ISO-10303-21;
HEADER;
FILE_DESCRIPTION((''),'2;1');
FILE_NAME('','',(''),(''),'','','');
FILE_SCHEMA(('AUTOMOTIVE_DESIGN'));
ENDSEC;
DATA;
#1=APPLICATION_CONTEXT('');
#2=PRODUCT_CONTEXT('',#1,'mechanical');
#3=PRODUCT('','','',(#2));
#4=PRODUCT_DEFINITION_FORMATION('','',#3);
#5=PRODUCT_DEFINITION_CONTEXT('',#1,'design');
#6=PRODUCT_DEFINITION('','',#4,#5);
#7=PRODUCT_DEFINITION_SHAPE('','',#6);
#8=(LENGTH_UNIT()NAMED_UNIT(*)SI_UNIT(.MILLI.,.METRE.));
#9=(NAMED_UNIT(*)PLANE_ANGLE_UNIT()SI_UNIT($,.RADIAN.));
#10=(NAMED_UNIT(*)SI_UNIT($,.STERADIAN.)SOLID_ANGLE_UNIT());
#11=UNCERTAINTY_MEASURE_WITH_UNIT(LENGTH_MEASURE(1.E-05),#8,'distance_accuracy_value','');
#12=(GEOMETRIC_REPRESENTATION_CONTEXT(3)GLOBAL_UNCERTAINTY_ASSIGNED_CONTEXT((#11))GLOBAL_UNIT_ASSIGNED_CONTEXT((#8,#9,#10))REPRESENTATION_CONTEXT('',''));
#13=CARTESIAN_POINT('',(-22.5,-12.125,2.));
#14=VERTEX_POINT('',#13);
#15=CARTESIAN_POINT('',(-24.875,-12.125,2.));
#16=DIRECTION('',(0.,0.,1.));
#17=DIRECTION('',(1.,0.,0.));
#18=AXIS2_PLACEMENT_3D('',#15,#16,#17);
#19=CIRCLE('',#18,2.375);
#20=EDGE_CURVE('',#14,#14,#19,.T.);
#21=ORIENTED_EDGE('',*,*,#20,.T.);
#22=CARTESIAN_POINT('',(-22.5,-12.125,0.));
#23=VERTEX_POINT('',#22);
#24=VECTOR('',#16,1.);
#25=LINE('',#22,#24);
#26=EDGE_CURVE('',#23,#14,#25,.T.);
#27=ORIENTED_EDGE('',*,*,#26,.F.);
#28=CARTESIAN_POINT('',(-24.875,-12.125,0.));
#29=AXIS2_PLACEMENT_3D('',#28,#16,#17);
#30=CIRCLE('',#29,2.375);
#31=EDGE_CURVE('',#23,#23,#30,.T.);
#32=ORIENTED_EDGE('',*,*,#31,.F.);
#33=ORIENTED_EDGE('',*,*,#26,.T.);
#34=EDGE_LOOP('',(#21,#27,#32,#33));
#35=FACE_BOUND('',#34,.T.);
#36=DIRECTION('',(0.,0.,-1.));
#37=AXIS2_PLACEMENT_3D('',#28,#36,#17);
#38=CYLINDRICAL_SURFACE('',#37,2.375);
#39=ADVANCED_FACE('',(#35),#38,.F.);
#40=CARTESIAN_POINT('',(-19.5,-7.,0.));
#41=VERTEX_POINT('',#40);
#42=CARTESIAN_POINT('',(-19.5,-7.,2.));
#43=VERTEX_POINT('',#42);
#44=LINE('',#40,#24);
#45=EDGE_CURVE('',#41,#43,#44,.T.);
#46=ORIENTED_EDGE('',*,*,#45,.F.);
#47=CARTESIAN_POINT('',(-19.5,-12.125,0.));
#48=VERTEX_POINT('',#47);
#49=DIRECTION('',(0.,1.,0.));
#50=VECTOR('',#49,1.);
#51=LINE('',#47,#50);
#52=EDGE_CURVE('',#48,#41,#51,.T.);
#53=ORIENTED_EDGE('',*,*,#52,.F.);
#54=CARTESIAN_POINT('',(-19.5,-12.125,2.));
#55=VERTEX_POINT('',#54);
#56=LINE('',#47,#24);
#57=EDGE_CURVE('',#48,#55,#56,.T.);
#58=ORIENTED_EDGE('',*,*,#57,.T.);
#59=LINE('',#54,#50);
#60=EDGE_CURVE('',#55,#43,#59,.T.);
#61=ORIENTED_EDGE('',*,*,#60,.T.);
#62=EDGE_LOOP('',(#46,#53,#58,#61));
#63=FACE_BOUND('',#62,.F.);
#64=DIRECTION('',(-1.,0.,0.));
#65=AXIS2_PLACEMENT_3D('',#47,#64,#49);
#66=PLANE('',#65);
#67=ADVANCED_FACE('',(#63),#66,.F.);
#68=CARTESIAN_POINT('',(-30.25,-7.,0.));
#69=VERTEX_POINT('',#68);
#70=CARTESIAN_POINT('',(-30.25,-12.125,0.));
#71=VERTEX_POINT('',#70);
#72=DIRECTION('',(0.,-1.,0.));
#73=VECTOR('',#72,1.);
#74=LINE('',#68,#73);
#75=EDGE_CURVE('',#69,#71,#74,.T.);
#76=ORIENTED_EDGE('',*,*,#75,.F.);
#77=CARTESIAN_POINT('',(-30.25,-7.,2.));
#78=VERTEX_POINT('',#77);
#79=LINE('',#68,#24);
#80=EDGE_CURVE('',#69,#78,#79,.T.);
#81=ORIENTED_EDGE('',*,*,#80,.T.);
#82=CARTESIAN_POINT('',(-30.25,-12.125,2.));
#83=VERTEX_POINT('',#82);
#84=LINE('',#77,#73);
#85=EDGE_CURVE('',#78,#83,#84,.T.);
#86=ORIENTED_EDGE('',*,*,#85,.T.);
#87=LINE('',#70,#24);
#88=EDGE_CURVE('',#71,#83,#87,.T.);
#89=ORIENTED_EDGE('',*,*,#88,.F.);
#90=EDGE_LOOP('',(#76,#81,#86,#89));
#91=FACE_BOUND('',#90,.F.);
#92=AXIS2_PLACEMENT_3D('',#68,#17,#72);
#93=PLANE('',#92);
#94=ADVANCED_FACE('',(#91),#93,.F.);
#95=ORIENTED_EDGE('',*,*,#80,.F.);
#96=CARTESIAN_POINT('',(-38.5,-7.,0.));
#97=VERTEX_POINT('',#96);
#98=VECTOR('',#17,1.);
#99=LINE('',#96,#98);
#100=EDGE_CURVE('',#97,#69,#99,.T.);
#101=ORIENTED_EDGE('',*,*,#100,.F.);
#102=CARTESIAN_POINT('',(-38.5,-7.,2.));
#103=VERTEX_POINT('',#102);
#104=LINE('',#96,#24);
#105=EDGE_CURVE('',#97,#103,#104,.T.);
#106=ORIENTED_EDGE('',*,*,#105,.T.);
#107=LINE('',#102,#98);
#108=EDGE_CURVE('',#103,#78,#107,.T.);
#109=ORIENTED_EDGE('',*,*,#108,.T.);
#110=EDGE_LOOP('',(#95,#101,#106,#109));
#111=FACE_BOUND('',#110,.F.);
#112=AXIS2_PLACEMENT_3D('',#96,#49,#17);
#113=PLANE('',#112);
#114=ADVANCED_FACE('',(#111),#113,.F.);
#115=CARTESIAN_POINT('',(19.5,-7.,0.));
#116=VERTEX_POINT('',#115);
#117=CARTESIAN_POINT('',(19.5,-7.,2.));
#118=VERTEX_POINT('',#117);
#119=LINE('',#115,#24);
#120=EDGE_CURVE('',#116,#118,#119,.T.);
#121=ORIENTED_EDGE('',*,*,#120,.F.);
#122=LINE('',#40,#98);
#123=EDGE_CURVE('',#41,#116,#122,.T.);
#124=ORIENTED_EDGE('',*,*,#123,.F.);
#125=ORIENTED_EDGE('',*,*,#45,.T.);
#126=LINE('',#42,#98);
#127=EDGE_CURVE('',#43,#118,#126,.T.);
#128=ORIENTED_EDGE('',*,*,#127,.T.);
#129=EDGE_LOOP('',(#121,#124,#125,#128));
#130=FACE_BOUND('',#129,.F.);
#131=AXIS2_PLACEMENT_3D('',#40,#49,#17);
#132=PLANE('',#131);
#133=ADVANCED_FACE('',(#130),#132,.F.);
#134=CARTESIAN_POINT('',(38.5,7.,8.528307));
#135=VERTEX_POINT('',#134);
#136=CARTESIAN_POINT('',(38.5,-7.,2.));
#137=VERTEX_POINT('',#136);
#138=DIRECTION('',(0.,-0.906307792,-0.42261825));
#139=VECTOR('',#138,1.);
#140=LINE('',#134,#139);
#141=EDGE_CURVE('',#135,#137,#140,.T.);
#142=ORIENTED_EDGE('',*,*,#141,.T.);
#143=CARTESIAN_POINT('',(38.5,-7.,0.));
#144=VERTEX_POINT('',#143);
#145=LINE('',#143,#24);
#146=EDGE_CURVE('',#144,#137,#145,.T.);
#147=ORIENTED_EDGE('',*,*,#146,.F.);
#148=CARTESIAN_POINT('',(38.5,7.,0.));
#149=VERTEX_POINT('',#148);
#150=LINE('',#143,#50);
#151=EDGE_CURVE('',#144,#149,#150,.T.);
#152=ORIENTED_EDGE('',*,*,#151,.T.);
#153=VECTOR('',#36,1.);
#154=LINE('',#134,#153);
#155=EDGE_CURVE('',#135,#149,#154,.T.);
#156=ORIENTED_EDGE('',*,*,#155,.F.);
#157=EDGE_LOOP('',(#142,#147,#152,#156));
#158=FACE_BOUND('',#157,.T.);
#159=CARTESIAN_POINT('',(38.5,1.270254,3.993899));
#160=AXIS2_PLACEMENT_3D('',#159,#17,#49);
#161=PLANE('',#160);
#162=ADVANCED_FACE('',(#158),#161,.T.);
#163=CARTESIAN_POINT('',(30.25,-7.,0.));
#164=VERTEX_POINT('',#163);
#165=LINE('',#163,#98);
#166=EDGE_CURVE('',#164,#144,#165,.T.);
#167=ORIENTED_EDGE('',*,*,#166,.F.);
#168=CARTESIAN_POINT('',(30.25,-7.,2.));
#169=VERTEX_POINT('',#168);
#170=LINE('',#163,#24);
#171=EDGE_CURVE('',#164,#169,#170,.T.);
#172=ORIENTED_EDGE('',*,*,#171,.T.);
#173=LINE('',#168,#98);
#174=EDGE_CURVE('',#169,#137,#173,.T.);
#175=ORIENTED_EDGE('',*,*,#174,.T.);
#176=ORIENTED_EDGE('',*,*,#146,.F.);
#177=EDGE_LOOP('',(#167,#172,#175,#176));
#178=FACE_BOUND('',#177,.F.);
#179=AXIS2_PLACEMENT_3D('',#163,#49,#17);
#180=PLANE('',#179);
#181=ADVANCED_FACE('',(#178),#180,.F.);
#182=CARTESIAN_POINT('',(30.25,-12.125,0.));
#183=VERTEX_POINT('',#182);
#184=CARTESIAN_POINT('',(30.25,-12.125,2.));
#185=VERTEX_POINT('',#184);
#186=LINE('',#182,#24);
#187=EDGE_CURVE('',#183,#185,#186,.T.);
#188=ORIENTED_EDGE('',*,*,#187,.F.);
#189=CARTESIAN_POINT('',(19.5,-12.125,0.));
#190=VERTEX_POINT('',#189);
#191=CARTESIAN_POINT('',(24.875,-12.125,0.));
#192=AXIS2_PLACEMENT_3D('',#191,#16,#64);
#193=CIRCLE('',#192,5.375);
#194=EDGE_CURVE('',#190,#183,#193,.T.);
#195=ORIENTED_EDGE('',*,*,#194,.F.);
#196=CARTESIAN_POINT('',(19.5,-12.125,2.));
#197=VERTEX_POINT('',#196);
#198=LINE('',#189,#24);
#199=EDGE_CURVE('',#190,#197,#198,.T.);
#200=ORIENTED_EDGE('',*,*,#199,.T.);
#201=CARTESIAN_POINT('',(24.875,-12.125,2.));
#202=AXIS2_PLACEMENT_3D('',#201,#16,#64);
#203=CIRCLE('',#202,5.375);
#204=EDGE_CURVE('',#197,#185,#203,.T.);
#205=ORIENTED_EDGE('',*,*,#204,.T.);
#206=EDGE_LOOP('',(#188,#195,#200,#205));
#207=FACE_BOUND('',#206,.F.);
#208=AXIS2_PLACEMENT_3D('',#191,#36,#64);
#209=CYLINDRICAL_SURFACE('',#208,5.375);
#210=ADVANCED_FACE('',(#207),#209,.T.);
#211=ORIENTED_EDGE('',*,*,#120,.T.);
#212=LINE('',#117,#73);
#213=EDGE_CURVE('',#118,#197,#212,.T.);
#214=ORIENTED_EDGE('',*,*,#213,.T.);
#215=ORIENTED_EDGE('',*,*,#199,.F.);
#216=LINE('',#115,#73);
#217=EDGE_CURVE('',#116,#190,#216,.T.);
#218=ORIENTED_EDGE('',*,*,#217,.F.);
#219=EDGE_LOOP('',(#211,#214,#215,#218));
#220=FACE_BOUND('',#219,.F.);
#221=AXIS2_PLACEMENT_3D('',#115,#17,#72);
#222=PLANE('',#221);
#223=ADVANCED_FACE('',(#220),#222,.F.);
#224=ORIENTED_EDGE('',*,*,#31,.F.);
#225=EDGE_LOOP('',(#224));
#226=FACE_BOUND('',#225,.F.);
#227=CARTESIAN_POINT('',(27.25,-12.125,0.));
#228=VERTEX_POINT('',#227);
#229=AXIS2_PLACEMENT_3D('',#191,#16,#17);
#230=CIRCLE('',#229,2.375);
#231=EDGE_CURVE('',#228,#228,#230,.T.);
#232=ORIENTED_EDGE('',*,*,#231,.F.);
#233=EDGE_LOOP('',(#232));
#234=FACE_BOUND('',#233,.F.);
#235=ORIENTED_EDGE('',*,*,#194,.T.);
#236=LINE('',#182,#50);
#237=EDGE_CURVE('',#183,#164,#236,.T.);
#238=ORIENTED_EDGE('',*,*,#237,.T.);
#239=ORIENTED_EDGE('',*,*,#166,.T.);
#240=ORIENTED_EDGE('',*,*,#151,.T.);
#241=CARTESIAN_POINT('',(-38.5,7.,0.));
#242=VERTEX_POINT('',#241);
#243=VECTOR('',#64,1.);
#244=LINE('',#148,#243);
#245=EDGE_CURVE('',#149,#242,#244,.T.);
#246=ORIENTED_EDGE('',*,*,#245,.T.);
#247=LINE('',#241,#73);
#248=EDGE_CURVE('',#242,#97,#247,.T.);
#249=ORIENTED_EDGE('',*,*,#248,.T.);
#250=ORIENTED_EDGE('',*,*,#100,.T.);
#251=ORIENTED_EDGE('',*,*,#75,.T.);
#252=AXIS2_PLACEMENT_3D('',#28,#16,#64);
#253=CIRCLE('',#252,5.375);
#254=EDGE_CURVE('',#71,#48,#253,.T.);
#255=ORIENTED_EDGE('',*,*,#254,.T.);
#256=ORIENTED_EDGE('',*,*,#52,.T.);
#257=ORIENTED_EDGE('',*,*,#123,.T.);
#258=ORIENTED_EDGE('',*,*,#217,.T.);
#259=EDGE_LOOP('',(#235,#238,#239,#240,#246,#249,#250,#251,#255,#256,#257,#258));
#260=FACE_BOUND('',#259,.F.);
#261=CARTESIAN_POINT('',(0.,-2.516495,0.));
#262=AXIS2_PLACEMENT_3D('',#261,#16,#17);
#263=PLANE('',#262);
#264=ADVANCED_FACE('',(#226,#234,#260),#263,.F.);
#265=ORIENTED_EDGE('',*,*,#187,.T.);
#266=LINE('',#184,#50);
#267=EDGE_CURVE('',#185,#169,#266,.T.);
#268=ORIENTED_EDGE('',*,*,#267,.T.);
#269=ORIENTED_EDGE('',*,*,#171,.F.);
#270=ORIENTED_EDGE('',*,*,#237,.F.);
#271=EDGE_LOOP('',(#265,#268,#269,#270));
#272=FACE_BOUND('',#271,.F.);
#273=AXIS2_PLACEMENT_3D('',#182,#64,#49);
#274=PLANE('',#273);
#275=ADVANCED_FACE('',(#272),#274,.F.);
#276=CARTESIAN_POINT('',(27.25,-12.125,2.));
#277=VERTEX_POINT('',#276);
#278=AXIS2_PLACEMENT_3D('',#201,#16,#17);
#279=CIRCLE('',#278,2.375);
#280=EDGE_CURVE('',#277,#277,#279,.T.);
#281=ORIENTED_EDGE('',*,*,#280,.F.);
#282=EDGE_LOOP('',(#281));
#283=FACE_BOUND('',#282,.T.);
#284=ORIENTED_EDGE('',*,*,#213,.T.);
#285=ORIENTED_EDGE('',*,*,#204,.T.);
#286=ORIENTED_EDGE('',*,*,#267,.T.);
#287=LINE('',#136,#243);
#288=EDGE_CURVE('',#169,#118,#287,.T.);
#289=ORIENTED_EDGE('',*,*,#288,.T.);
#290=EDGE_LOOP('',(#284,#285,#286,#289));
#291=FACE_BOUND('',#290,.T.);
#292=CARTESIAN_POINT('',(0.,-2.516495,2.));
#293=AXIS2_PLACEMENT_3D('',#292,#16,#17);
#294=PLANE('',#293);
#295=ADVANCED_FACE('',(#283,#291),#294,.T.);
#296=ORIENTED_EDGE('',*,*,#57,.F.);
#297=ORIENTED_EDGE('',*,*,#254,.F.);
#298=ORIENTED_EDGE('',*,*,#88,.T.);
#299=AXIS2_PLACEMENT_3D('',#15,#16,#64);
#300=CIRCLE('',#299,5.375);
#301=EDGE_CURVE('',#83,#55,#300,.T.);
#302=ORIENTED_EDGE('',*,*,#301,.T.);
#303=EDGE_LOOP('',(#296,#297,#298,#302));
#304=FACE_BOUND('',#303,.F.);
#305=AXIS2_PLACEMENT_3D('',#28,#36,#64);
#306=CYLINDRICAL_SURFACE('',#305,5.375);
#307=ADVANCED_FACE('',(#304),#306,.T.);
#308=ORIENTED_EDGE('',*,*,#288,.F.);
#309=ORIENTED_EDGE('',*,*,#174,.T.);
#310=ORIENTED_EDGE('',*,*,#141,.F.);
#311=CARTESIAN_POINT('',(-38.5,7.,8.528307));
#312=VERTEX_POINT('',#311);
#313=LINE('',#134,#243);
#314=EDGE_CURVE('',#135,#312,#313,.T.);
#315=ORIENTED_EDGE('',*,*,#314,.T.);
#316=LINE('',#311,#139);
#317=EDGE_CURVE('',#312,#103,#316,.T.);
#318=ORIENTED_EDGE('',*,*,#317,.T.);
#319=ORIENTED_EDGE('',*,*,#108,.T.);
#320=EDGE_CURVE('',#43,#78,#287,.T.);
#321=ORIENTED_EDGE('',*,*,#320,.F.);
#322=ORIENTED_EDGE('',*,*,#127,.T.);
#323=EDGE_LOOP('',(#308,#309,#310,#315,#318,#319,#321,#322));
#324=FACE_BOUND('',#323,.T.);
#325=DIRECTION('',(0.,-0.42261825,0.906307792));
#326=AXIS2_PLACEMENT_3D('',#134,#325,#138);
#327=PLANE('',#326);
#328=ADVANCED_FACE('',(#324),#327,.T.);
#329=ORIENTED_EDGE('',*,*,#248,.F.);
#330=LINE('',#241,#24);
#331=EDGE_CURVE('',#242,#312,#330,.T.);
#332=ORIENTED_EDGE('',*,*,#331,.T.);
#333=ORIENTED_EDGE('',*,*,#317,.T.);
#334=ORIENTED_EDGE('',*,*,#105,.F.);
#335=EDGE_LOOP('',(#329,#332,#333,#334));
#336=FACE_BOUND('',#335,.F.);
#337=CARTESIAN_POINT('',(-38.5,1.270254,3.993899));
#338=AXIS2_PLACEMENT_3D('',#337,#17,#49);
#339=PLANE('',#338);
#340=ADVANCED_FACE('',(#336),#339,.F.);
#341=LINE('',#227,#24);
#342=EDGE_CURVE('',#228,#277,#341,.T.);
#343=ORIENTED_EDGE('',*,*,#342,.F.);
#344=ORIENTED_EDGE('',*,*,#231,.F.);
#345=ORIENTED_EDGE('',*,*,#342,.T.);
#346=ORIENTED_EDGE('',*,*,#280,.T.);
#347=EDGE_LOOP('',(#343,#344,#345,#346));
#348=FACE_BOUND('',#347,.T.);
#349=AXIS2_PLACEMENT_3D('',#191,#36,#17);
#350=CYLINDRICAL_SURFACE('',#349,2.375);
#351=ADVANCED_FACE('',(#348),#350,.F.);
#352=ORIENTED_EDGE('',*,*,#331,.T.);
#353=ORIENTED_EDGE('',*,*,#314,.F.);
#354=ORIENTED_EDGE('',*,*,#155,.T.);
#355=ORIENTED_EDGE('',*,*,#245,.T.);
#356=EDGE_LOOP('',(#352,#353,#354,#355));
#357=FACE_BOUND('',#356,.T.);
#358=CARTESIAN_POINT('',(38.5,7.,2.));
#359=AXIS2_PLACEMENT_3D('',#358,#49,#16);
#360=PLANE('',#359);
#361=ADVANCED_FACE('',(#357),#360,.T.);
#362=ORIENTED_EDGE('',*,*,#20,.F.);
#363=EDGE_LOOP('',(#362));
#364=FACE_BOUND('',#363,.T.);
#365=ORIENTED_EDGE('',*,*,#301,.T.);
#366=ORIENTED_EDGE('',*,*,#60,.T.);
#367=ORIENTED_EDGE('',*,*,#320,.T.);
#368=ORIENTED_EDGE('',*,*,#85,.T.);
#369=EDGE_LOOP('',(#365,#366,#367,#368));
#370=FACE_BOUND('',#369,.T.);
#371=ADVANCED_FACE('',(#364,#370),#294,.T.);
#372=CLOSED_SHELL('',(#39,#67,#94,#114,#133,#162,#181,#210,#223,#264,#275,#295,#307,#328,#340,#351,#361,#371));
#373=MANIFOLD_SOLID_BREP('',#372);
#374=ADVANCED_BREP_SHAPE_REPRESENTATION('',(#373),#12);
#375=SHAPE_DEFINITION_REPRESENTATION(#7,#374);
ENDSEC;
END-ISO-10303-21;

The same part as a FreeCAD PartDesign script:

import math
import FreeCAD as App
import Part
import Sketcher
from FreeCAD import Vector
Q = App.Units.Quantity


def add_polygon(sketch, points):
    """Adds a closed chain of lines whose ends are joined by coincident constraints."""
    first, n = sketch.GeometryCount, len(points)
    for a, b in zip(points, points[1:] + points[:1]):
        sketch.addGeometry(Part.LineSegment(App.Vector(*a, 0), App.Vector(*b, 0)), False)
    for i in range(n):
        sketch.addConstraint(Sketcher.Constraint("Coincident", first + i, 2, first + (i + 1) % n, 1))

doc = App.newDocument("Part")
body = doc.addObject("PartDesign::Body", "Body")

# Sketch on XY plane
sketch1 = body.newObject("Sketcher::SketchObject", "Sketch")
sketch1.AttachmentSupport = (doc.getObject("XY_Plane"), [""])
sketch1.MapMode = "FlatFace"
sketch1.addGeometry(Part.LineSegment(Vector(38.5, -7, 0), Vector(38.5, 7, 0)), False)
sketch1.addGeometry(Part.LineSegment(Vector(38.5, 7, 0), Vector(-38.5, 7, 0)), False)
sketch1.addGeometry(Part.LineSegment(Vector(-38.5, 7, 0), Vector(-38.5, -7, 0)), False)
sketch1.addGeometry(Part.LineSegment(Vector(-38.5, -7, 0), Vector(-30.2, -7, 0)), False)
sketch1.addGeometry(Part.LineSegment(Vector(-30.2, -7, 0), Vector(-30.2, -12.1, 0)), False)
sketch1.addGeometry(Part.ArcOfCircle(Part.Circle(Vector(-24.9, -12.1, 0), Vector(0, 0, 1), 5.4), math.radians(180), math.radians(360)), False)
sketch1.addGeometry(Part.LineSegment(Vector(-19.5, -12.1, 0), Vector(-19.5, -7, 0)), False)
sketch1.addGeometry(Part.LineSegment(Vector(-19.5, -7, 0), Vector(19.5, -7, 0)), False)
sketch1.addGeometry(Part.LineSegment(Vector(19.5, -7, 0), Vector(19.5, -12.1, 0)), False)
sketch1.addGeometry(Part.ArcOfCircle(Part.Circle(Vector(24.9, -12.1, 0), Vector(0, 0, 1), 5.4), math.radians(180), math.radians(360)), False)
sketch1.addGeometry(Part.LineSegment(Vector(30.2, -12.1, 0), Vector(30.2, -7, 0)), False)
sketch1.addGeometry(Part.LineSegment(Vector(30.2, -7, 0), Vector(38.5, -7, 0)), False)
sketch1.addGeometry(Part.Circle(Vector(-24.9, -12.1, 0), Vector(0, 0, 1), 2.4), False)
sketch1.addGeometry(Part.Circle(Vector(24.9, -12.1, 0), Vector(0, 0, 1), 2.4), False)
sketch1.addConstraint(Sketcher.Constraint("Coincident", 0, 2, 1, 1))
sketch1.addConstraint(Sketcher.Constraint("Coincident", 1, 2, 2, 1))
sketch1.addConstraint(Sketcher.Constraint("Coincident", 2, 2, 3, 1))
sketch1.addConstraint(Sketcher.Constraint("Coincident", 3, 2, 4, 1))
sketch1.addConstraint(Sketcher.Constraint("Tangent", 4, 2, 5, 1))
sketch1.addConstraint(Sketcher.Constraint("Tangent", 5, 2, 6, 1))
sketch1.addConstraint(Sketcher.Constraint("Coincident", 6, 2, 7, 1))
sketch1.addConstraint(Sketcher.Constraint("Coincident", 7, 2, 8, 1))
sketch1.addConstraint(Sketcher.Constraint("Tangent", 8, 2, 9, 1))
sketch1.addConstraint(Sketcher.Constraint("Tangent", 9, 2, 10, 1))
sketch1.addConstraint(Sketcher.Constraint("Coincident", 10, 2, 11, 1))
sketch1.addConstraint(Sketcher.Constraint("Coincident", 11, 2, 0, 1))
sketch1.addConstraint(Sketcher.Constraint("Vertical", 0))
sketch1.addConstraint(Sketcher.Constraint("Horizontal", 1))
sketch1.addConstraint(Sketcher.Constraint("Vertical", 2))
sketch1.addConstraint(Sketcher.Constraint("Horizontal", 3))
sketch1.addConstraint(Sketcher.Constraint("Vertical", 4))
sketch1.addConstraint(Sketcher.Constraint("Vertical", 6))
sketch1.addConstraint(Sketcher.Constraint("Horizontal", 7))
sketch1.addConstraint(Sketcher.Constraint("Vertical", 8))
sketch1.addConstraint(Sketcher.Constraint("Vertical", 10))
sketch1.addConstraint(Sketcher.Constraint("Horizontal", 11))
sketch1.addConstraint(Sketcher.Constraint("Coincident", 12, 3, 5, 3))
sketch1.addConstraint(Sketcher.Constraint("Coincident", 13, 3, 9, 3))
sketch1.addConstraint(Sketcher.Constraint("Equal", 5, 9))
sketch1.addConstraint(Sketcher.Constraint("Equal", 12, 13))
sketch1.addConstraint(Sketcher.Constraint("Symmetric", 0, 2, 2, 2, -1, 1))
sketch1.addConstraint(Sketcher.Constraint("Symmetric", 5, 3, 9, 3, -2))
sketch1.addConstraint(Sketcher.Constraint("Horizontal", 3, 2, 6, 2))
sketch1.addConstraint(Sketcher.Constraint("Horizontal", 7, 2, 10, 2))
sketch1.addConstraint(Sketcher.Constraint("Diameter", 12, 4.75))
sketch1.addConstraint(Sketcher.Constraint("DistanceX", 1, 2, 1, 1, 77.0))
sketch1.addConstraint(Sketcher.Constraint("DistanceX", 7, 1, 7, 2, 39.0))
sketch1.addConstraint(Sketcher.Constraint("DistanceY", 0, 1, 0, 2, 14.0))
sketch1.addConstraint(Sketcher.Constraint("Radius", 5, 5.375))
sketch1.addConstraint(Sketcher.Constraint("DistanceY", 4, 2, 4, 1, 5.125))
pad1 = body.newObject("PartDesign::Pad", "Pad")
pad1.Profile = sketch1
pad1.Length = 2

# Sketch on YZ plane
sketch2 = body.newObject("Sketcher::SketchObject", "Sketch001")
sketch2.AttachmentSupport = (doc.getObject("YZ_Plane"), [""])
sketch2.MapMode = "FlatFace"
sketch2.AttachmentOffset = App.Placement(Vector(0, 0, 38.5), App.Rotation())
add_polygon(sketch2, [(7, 9), (-7, 2), (7, 2)])  # lines 0-2
sketch2.addConstraint(Sketcher.Constraint("Horizontal", 1))
sketch2.addConstraint(Sketcher.Constraint("Vertical", 2))
sketch2.addConstraint(Sketcher.Constraint("DistanceX", 1, 1, 1, 2, 14.0))
sketch2.addConstraint(Sketcher.Constraint("Angle", 0, Q("-155.000001 deg")))
sketch2.addConstraint(Sketcher.Constraint("DistanceX", 0, 2, -1, 1, 7.0))
sketch2.addConstraint(Sketcher.Constraint("DistanceY", -1, 1, 0, 2, 2.0))
pad2 = body.newObject("PartDesign::Pad", "Pad001")
pad2.Profile = sketch2
pad2.Length = 77
pad2.Reversed = True

doc.recompute()
